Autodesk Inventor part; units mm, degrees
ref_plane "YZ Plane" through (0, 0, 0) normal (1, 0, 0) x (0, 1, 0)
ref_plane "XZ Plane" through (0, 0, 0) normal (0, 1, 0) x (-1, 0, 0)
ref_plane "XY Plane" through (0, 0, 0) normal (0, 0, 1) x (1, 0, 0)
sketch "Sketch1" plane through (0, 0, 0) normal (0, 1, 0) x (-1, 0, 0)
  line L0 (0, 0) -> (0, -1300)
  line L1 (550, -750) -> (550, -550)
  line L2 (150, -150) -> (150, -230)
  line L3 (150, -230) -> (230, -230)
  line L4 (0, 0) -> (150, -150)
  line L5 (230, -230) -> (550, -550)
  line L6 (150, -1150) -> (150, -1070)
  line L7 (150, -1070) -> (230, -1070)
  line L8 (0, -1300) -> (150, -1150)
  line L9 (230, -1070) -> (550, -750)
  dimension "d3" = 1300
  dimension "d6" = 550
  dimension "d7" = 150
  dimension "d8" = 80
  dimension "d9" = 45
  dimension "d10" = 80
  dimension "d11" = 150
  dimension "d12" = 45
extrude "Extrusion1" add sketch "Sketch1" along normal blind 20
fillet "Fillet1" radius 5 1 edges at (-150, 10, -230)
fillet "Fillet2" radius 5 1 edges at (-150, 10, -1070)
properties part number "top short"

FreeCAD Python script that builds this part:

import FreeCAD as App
import Part
import Sketcher
from FreeCAD import Vector
Q = App.Units.Quantity


def edges_at(feature, points):
    """Names of the edges that pass closest to the given points."""
    edges = feature.Shape.Edges
    near = lambda p: min(range(len(edges)), key=lambda i: edges[i].distToShape(Part.Vertex(*p))[0])
    return sorted({f"Edge{near(p) + 1}" for p in points})


def add_polygon(sketch, points):
    """Adds a closed chain of lines whose ends are joined by coincident constraints."""
    first, n = sketch.GeometryCount, len(points)
    for a, b in zip(points, points[1:] + points[:1]):
        sketch.addGeometry(Part.LineSegment(App.Vector(*a, 0), App.Vector(*b, 0)), False)
    for i in range(n):
        sketch.addConstraint(Sketcher.Constraint("Coincident", first + i, 2, first + (i + 1) % n, 1))

doc = App.newDocument("Part")
body = doc.addObject("PartDesign::Body", "Body")

sketch1 = body.newObject("Sketcher::SketchObject", "Sketch")
sketch1.AttachmentSupport = (doc.getObject("XZ_Plane"), [""])
sketch1.MapMode = "FlatFace"
add_polygon(sketch1, [(-150, -150), (0, 0), (0, -1300), (-150, -1150), (-150, -1070), (-230, -1070), (-550, -750), (-550, -550), (-230, -230), (-150, -230)])
sketch1.addConstraint([
    Sketcher.Constraint("Vertical", 1),
    Sketcher.Constraint("Vertical", 3),
    Sketcher.Constraint("Horizontal", 4),
    Sketcher.Constraint("Vertical", 6),
    Sketcher.Constraint("Horizontal", 8),
    Sketcher.Constraint("Vertical", 9),
    Sketcher.Constraint("Coincident", 0, 2, -1, 1),
    Sketcher.Constraint("Perpendicular", 0, 2),
    Sketcher.Constraint("Parallel", 2, 5),
    Sketcher.Constraint("Perpendicular", 5, 7),
    Sketcher.Constraint("Vertical", 4, 2, 7, 2),
    Sketcher.Constraint("Vertical", 3, 2, 8, 2),
    Sketcher.Constraint("Equal", 8, 3),
    Sketcher.Constraint("Equal", 3, 9),
    Sketcher.Constraint("Equal", 0, 2),
    Sketcher.Constraint("DistanceX", 4, 2, 4, 1, Q("80 mm")),
    Sketcher.Constraint("DistanceY", 1, 2, 1, 1, Q("1300 mm")),
    Sketcher.Constraint("DistanceX", 2, 2, -1, 1, Q("150 mm")),
    Sketcher.Constraint("DistanceX", 5, 2, -1, 1, Q("550 mm")),
])
pad1 = body.newObject("PartDesign::Pad", "Pad")
pad1.Profile = sketch1
pad1.Length = 20
pad1.Reversed = True
doc.recompute()

fillet = body.newObject("PartDesign::Fillet", "Fillet")
fillet.Base = (pad1, edges_at(pad1, [(-150, 10, -230)]))
fillet.Radius = 5
doc.recompute()

fillet2 = body.newObject("PartDesign::Fillet", "Fillet001")
fillet2.Base = (fillet, edges_at(fillet, [(-150, 10, -1070)]))
fillet2.Radius = 5

doc.recompute()
